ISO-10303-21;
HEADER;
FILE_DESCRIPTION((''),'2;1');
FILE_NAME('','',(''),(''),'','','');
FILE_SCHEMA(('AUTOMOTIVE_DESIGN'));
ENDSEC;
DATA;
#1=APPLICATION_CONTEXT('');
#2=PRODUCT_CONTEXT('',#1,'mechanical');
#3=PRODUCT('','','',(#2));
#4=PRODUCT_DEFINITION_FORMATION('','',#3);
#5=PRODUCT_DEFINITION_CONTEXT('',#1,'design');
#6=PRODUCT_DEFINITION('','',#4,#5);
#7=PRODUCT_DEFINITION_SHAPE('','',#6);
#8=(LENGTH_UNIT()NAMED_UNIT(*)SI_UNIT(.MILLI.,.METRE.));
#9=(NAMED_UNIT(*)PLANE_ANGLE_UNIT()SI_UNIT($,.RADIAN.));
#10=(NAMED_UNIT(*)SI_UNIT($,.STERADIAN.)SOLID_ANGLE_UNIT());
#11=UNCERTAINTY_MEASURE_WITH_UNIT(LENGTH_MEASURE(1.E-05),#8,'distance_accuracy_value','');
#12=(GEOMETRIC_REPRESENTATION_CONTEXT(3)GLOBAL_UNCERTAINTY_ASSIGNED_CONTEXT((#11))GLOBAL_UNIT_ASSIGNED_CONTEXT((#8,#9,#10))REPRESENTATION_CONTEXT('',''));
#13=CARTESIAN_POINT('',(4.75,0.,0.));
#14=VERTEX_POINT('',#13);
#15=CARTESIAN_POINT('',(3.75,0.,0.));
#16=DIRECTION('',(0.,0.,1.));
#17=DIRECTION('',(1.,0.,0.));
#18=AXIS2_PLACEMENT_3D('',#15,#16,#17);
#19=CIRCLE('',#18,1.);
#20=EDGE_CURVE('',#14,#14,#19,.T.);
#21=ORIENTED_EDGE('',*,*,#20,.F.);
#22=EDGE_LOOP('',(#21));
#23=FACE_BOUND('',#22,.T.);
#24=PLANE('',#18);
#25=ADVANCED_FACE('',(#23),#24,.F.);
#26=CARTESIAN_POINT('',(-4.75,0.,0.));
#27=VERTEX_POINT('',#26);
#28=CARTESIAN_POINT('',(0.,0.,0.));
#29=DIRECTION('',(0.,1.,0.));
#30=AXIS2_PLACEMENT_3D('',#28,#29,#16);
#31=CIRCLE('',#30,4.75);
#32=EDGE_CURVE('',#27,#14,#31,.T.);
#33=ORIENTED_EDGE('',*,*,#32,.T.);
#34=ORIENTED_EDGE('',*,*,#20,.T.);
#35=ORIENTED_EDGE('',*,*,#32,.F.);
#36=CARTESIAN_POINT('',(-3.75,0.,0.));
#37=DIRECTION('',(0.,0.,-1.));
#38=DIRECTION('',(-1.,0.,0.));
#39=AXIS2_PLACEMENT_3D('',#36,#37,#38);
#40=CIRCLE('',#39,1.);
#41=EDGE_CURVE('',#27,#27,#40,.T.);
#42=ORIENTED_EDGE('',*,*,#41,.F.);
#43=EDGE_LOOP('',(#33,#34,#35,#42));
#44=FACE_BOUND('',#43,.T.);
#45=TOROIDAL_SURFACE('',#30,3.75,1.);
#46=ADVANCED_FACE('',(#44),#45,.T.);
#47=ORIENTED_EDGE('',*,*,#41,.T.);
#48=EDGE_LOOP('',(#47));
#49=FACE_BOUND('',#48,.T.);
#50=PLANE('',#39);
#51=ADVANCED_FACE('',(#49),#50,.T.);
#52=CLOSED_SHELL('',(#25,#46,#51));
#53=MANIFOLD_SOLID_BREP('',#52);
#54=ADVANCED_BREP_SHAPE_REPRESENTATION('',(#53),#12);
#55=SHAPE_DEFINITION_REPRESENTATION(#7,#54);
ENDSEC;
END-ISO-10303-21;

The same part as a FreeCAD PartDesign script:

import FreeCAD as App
import Part
import Sketcher
from FreeCAD import Vector
Q = App.Units.Quantity

doc = App.newDocument("Part")
body = doc.addObject("PartDesign::Body", "Body")

sketch1 = doc.addObject("Sketcher::SketchObject", "Sketch")
body.addObject(sketch1)
sketch1.AttachmentSupport = (doc.XY_Plane, [""])
sketch1.MapMode = "FlatFace"
sketch1.addGeometry(Part.Circle(Vector(3.75, 0, 0), Vector(0, 0, 1), 1), False)
sketch1.addConstraint(Sketcher.Constraint("PointOnObject", 0, 3, -1))
sketch1.addConstraint(Sketcher.Constraint("Diameter", 0, Q("2 mm")))
sketch1.addConstraint(Sketcher.Constraint("DistanceX", -1, 1, 0, 3, Q("3.75 mm")))
revolution = doc.addObject("PartDesign::Revolution", "Revolution")
body.addObject(revolution)
revolution.Profile = sketch1
revolution.ReferenceAxis = (sketch1, ["V_Axis"])
revolution.Angle = 180
revolution.Reversed = True

doc.recompute()
